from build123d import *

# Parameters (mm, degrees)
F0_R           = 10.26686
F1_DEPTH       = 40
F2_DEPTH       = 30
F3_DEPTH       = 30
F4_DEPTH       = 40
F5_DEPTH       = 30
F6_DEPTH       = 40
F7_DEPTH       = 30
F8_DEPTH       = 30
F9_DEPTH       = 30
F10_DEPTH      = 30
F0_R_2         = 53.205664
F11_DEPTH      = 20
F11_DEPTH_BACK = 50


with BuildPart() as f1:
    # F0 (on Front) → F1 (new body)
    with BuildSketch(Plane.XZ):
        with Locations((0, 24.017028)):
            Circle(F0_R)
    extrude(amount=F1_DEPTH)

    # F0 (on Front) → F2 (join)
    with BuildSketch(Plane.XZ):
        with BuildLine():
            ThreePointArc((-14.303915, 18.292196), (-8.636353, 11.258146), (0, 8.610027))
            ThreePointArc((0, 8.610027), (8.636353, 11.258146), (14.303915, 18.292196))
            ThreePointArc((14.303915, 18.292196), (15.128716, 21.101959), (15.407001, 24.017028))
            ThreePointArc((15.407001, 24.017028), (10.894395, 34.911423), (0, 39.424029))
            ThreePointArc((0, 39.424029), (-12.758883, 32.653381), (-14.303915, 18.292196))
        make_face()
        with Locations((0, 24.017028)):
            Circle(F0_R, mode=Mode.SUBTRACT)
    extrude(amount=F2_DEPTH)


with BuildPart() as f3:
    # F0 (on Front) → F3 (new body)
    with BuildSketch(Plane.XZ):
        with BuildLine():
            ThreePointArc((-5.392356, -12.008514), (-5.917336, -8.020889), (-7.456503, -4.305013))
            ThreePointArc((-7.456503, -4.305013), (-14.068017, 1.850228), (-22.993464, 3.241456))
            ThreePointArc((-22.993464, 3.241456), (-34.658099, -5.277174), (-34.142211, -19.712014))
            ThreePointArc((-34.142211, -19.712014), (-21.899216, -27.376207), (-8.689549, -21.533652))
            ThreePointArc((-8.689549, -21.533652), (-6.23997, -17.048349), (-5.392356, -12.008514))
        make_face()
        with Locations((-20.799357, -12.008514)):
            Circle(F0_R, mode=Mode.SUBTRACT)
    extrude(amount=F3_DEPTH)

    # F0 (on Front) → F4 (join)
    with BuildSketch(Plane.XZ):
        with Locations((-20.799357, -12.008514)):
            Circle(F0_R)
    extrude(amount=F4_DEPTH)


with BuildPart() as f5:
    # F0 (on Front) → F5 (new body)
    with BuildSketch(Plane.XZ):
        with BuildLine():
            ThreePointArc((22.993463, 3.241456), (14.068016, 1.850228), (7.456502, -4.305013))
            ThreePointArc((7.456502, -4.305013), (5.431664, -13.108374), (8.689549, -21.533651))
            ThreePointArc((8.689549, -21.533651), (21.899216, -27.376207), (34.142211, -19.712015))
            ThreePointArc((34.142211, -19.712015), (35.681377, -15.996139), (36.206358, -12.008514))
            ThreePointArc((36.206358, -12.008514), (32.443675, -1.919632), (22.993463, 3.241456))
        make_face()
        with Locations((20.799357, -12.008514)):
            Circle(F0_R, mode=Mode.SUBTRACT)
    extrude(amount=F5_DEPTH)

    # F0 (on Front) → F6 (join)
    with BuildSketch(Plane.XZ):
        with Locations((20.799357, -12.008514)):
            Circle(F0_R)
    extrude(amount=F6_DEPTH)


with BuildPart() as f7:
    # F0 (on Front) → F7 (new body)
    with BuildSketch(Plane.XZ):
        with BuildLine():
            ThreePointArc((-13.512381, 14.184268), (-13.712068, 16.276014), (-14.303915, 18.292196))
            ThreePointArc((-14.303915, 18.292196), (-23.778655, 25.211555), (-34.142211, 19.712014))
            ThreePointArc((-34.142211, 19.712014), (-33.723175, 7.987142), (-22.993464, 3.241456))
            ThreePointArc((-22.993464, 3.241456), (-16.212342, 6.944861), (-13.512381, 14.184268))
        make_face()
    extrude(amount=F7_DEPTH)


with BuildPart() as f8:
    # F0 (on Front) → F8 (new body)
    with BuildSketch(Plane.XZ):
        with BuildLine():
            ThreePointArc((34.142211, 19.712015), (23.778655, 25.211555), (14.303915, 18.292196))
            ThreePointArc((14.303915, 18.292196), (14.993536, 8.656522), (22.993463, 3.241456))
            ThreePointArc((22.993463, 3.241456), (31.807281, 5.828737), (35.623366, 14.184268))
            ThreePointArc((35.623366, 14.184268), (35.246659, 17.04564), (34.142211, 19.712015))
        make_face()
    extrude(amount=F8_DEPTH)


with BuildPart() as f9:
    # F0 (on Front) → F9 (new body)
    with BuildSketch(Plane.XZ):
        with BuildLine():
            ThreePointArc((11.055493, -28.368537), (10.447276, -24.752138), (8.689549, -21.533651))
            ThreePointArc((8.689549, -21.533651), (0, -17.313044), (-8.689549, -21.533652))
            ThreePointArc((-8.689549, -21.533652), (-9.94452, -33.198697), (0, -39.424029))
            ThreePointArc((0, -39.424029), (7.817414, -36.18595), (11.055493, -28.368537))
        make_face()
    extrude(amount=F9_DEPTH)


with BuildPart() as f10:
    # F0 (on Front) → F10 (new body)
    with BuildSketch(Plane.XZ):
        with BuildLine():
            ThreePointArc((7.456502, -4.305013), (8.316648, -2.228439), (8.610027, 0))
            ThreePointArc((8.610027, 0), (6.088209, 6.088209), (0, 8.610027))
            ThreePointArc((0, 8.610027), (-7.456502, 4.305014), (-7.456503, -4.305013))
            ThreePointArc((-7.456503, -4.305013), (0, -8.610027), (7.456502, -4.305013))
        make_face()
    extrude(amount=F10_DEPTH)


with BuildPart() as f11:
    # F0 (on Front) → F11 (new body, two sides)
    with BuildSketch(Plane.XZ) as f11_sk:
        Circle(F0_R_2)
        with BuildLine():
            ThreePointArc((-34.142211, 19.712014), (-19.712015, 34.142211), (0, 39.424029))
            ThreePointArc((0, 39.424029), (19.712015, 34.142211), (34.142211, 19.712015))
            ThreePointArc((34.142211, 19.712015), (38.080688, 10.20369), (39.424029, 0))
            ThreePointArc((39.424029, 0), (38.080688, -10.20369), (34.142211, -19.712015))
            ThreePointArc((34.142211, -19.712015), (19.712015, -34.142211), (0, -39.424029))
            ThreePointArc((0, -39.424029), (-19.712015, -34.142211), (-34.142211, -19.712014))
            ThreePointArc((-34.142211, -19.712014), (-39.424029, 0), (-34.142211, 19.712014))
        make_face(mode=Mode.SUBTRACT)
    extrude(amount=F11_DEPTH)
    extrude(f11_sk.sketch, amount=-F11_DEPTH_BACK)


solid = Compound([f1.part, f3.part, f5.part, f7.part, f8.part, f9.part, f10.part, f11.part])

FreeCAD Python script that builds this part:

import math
import FreeCAD as App
import Part
import Sketcher

doc = App.newDocument("Part")
body = doc.addObject("PartDesign::Body", "Body")

sketch1 = body.newObject("Sketcher::SketchObject", "Sketch")
sketch1.AttachmentSupport = (doc.getObject("XZ_Plane"), [""])
sketch1.MapMode = "FlatFace"
sketch1.addGeometry(Part.Circle(App.Vector(0, 24, 0), App.Vector(0, 0, 1), 10), False)
sketch1.addConstraint([
    Sketcher.Constraint("PointOnObject", 0, 3, -2),
    Sketcher.Constraint("Diameter", 0, 20.53372),
    Sketcher.Constraint("DistanceY", -1, 1, 0, 3, 24.017028),
])
pad1 = body.newObject("PartDesign::Pad", "Pad")
pad1.Profile = sketch1
pad1.Length = 40

sketch2 = body.newObject("Sketcher::SketchObject", "Sketch001")
sketch2.AttachmentSupport = (doc.getObject("XZ_Plane"), [""])
sketch2.MapMode = "FlatFace"
sketch2.addGeometry([
    Part.ArcOfCircle(Part.Circle(App.Vector(0.000002, 24.017031, 0), App.Vector(0, 0, 1), 15.407004), math.radians(-158.187305), math.radians(-90.000007)),
    Part.ArcOfCircle(Part.Circle(App.Vector(-0.000002, 24.017031, 0), App.Vector(0, 0, 1), 15.407004), math.radians(-89.999993), math.radians(-21.812695)),
    Part.ArcOfCircle(Part.Circle(App.Vector(-0.000014, 24.01703, 0), App.Vector(0, 0, 1), 15.407015), math.radians(-21.812675), math.radians(-0.000008)),
    Part.ArcOfCircle(Part.Circle(App.Vector(0, 24.017028, 0), App.Vector(0, 0, 1), 15.407001), math.radians(-0.000001), math.radians(90.000001)),
    Part.ArcOfCircle(Part.Circle(App.Vector(0, 24.017028, 0), App.Vector(0, 0, 1), 15.407001), math.radians(89.999998), math.radians(201.812688)),
    Part.Circle(App.Vector(0, 24.017028, 0), App.Vector(0, 0, 1), 10.26686),
], False)
sketch2.addConstraint([
    Sketcher.Constraint("Coincident", 0, 2, 1, 1),
    Sketcher.Constraint("Coincident", 1, 2, 2, 1),
    Sketcher.Constraint("Coincident", 2, 2, 3, 1),
    Sketcher.Constraint("Coincident", 3, 2, 4, 1),
    Sketcher.Constraint("Coincident", 4, 2, 0, 1),
    Sketcher.Constraint("Coincident", 1, 3, 0, 3),
    Sketcher.Constraint("Coincident", 3, 3, 0, 3),
    Sketcher.Constraint("Coincident", 4, 3, 0, 3),
    Sketcher.Constraint("Coincident", 5, 3, 0, 3),
    Sketcher.Constraint("PointOnObject", 0, 3, -2),
    Sketcher.Constraint("PointOnObject", 0, 2, -2),
    Sketcher.Constraint("PointOnObject", 3, 2, -2),
    Sketcher.Constraint("Radius", 3, 15.407001),
    Sketcher.Constraint("Diameter", 5, 20.53372),
    Sketcher.Constraint("Radius", 2, 15.407015),
    Sketcher.Constraint("DistanceX", 4, 2, 2, 3, 14.303901),
    Sketcher.Constraint("DistanceY", -1, 1, 0, 3, 24.017031),
    Sketcher.Constraint("DistanceY", -1, 1, 2, 2, 24.017028),
    Sketcher.Constraint("DistanceX", -1, 1, 1, 2, 14.303915),
])
pad2 = body.newObject("PartDesign::Pad", "Pad001")
pad2.Profile = sketch2
pad2.Length = 30
body2 = doc.addObject("PartDesign::Body", "Body001")

sketch3 = body2.newObject("Sketcher::SketchObject", "Sketch002")
sketch3.AttachmentSupport = (doc.getObject("XZ_Plane001"), [""])
sketch3.MapMode = "FlatFace"
sketch3.addGeometry([
    Part.ArcOfCircle(Part.Circle(App.Vector(-20.799337, -12.008509, 0), App.Vector(0, 0, 1), 15.406981), math.radians(-0.00002), math.radians(30.000022)),
    Part.ArcOfCircle(Part.Circle(App.Vector(-20.799359, -12.008517, 0), App.Vector(0, 0, 1), 15.407004), math.radians(30.000008), math.radians(98.187304)),
    Part.ArcOfCircle(Part.Circle(App.Vector(-20.799356, -12.008514, 0), App.Vector(0, 0, 1), 15.407001), math.radians(98.187315), math.radians(209.999998)),
    Part.ArcOfCircle(Part.Circle(App.Vector(-20.799356, -12.008514, 0), App.Vector(0, 0, 1), 15.407001), math.radians(-150.000001), math.radians(-38.187316)),
    Part.ArcOfCircle(Part.Circle(App.Vector(-20.79936, -12.008514, 0), App.Vector(0, 0, 1), 15.407004), math.radians(-38.187305), math.radians(0)),
    Part.Circle(App.Vector(-20.799357, -12.008514, 0), App.Vector(0, 0, 1), 10.26686),
], False)
sketch3.addConstraint([
    Sketcher.Constraint("Coincident", 0, 2, 1, 1),
    Sketcher.Constraint("Coincident", 1, 2, 2, 1),
    Sketcher.Constraint("Coincident", 2, 2, 3, 1),
    Sketcher.Constraint("Coincident", 3, 2, 4, 1),
    Sketcher.Constraint("Coincident", 4, 2, 0, 1),
    Sketcher.Constraint("Coincident", 2, 3, 1, 3),
    Sketcher.Constraint("Coincident", 3, 3, 1, 3),
    Sketcher.Constraint("Coincident", 4, 3, 1, 3),
    Sketcher.Constraint("Coincident", 5, 3, 1, 3),
    Sketcher.Constraint("Radius", 2, 15.407001),
    Sketcher.Constraint("Diameter", 5, 20.53372),
    Sketcher.Constraint("Radius", 0, 15.406981),
    Sketcher.Constraint("DistanceY", 3, 3, 0, 2, 7.703501),
    Sketcher.Constraint("DistanceY", 2, 2, 4, 3, 7.7035),
    Sketcher.Constraint("DistanceY", 4, 2, 0, 2, 7.703501),
    Sketcher.Constraint("DistanceY", 0, 3, -1, 1, 12.008509),
    Sketcher.Constraint("DistanceX", 1, 3, -1, 1, 20.799359),
    Sketcher.Constraint("DistanceX", 3, 2, -1, 1, 8.689549),
    Sketcher.Constraint("DistanceY", 4, 3, 1, 2, 15.24997),
])
pad3 = body2.newObject("PartDesign::Pad", "Pad002")
pad3.Profile = sketch3
pad3.Length = 30

sketch4 = body2.newObject("Sketcher::SketchObject", "Sketch003")
sketch4.AttachmentSupport = (doc.getObject("XZ_Plane001"), [""])
sketch4.MapMode = "FlatFace"
sketch4.addGeometry(Part.Circle(App.Vector(-21, -12, 0), App.Vector(0, 0, 1), 10), False)
sketch4.addConstraint([
    Sketcher.Constraint("Diameter", 0, 20.53372),
    Sketcher.Constraint("DistanceX", 0, 3, -1, 1, 20.799357),
    Sketcher.Constraint("DistanceY", 0, 3, -1, 1, 12.008514),
])
pad4 = body2.newObject("PartDesign::Pad", "Pad003")
pad4.Profile = sketch4
pad4.Length = 40
body3 = doc.addObject("PartDesign::Body", "Body002")

sketch5 = body3.newObject("Sketcher::SketchObject", "Sketch004")
sketch5.AttachmentSupport = (doc.getObject("XZ_Plane002"), [""])
sketch5.MapMode = "FlatFace"
sketch5.addGeometry([
    Part.ArcOfCircle(Part.Circle(App.Vector(21, -12, 0), App.Vector(0, 0, 1), 15), math.radians(82), math.radians(150)),
    Part.ArcOfCircle(Part.Circle(App.Vector(21, -12, 0), App.Vector(0, 0, 1), 15), math.radians(150), math.radians(218)),
    Part.ArcOfCircle(Part.Circle(App.Vector(21, -12, 0), App.Vector(0, 0, 1), 15), math.radians(-142), math.radians(-30)),
    Part.ArcOfCircle(Part.Circle(App.Vector(21, -12, 0), App.Vector(0, 0, 1), 15), math.radians(-30), math.radians(0)),
    Part.ArcOfCircle(Part.Circle(App.Vector(21, -12, 0), App.Vector(0, 0, 1), 15), math.radians(0), math.radians(82)),
    Part.Circle(App.Vector(21, -12, 0), App.Vector(0, 0, 1), 10),
], False)
sketch5.addConstraint([
    Sketcher.Constraint("Tangent", 0, 2, 1, 1),
    Sketcher.Constraint("Tangent", 1, 2, 2, 1),
    Sketcher.Constraint("Tangent", 2, 2, 3, 1),
    Sketcher.Constraint("Tangent", 3, 2, 4, 1),
    Sketcher.Constraint("Tangent", 4, 2, 0, 1),
    Sketcher.Constraint("Coincident", 2, 3, 0, 3),
    Sketcher.Constraint("Coincident", 5, 3, 0, 3),
    Sketcher.Constraint("Horizontal", 5, 3, 3, 2),
    Sketcher.Constraint("Radius", 2, 15.407001),
    Sketcher.Constraint("Diameter", 5, 20.53372),
    Sketcher.Constraint("DistanceY", 3, 3, 0, 2, 7.703499),
    Sketcher.Constraint("DistanceX", 1, 2, 3, 3, 12.109801),
    Sketcher.Constraint("DistanceY", 2, 2, 1, 3, 7.703502),
    Sketcher.Constraint("DistanceX", -1, 1, 1, 3, 20.79936),
    Sketcher.Constraint("DistanceY", 1, 2, -1, 1, 21.533651),
    Sketcher.Constraint("DistanceY", 1, 3, 4, 2, 15.249969),
])
pad5 = body3.newObject("PartDesign::Pad", "Pad004")
pad5.Profile = sketch5
pad5.Length = 30

sketch6 = body3.newObject("Sketcher::SketchObject", "Sketch005")
sketch6.AttachmentSupport = (doc.getObject("XZ_Plane002"), [""])
sketch6.MapMode = "FlatFace"
sketch6.addGeometry(Part.Circle(App.Vector(21, -12, 0), App.Vector(0, 0, 1), 10), False)
sketch6.addConstraint([
    Sketcher.Constraint("Diameter", 0, 20.53372),
    Sketcher.Constraint("DistanceX", -1, 1, 0, 3, 20.799357),
    Sketcher.Constraint("DistanceY", 0, 3, -1, 1, 12.008514),
])
pad6 = body3.newObject("PartDesign::Pad", "Pad005")
pad6.Profile = sketch6
pad6.Length = 40
body4 = doc.addObject("PartDesign::Body", "Body003")

sketch7 = body4.newObject("Sketcher::SketchObject", "Sketch006")
sketch7.AttachmentSupport = (doc.getObject("XZ_Plane003"), [""])
sketch7.MapMode = "FlatFace"
sketch7.addGeometry([
    Part.ArcOfCircle(Part.Circle(App.Vector(-24.6, 14.2, 0), App.Vector(0, 0, 1), 11.1), math.radians(0), math.radians(22)),
    Part.ArcOfCircle(Part.Circle(App.Vector(-24.6, 14.2, 0), App.Vector(0, 0, 1), 11.1), math.radians(22), math.radians(150)),
    Part.ArcOfCircle(Part.Circle(App.Vector(-24.6, 14.2, 0), App.Vector(0, 0, 1), 11.1), math.radians(150), math.radians(278)),
    Part.ArcOfCircle(Part.Circle(App.Vector(-24.6, 14.2, 0), App.Vector(0, 0, 1), 11.1), math.radians(-82), math.radians(0)),
], False)
sketch7.addConstraint([
    Sketcher.Constraint("Tangent", 0, 2, 1, 1),
    Sketcher.Constraint("Tangent", 1, 2, 2, 1),
    Sketcher.Constraint("Tangent", 2, 2, 3, 1),
    Sketcher.Constraint("Tangent", 3, 2, 0, 1),
    Sketcher.Constraint("Equal", 1, 2),
    Sketcher.Constraint("Horizontal", 2, 3, 3, 2),
    Sketcher.Constraint("Radius", 2, 11.055492),
    Sketcher.Constraint("DistanceY", -1, 1, 1, 3, 14.184269),
    Sketcher.Constraint("DistanceX", 3, 3, -1, 1, 24.567871),
    Sketcher.Constraint("DistanceX", 1, 2, -1, 1, 34.142211),
    Sketcher.Constraint("DistanceY", 3, 3, 0, 2, 4.107929),
    Sketcher.Constraint("DistanceY", 2, 2, 3, 3, 10.942811),
])
pad7 = body4.newObject("PartDesign::Pad", "Pad006")
pad7.Profile = sketch7
pad7.Length = 30
body5 = doc.addObject("PartDesign::Body", "Body004")

sketch8 = body5.newObject("Sketcher::SketchObject", "Sketch007")
sketch8.AttachmentSupport = (doc.getObject("XZ_Plane004"), [""])
sketch8.MapMode = "FlatFace"
sketch8.addGeometry([
    Part.ArcOfCircle(Part.Circle(App.Vector(24.567874, 14.184268, 0), App.Vector(0, 0, 1), 11.055493), math.radians(30.000002), math.radians(158.18731)),
    Part.ArcOfCircle(Part.Circle(App.Vector(24.567873, 14.184268, 0), App.Vector(0, 0, 1), 11.055492), math.radians(158.187308), math.radians(261.812688)),
    Part.ArcOfCircle(Part.Circle(App.Vector(24.567875, 14.184267, 0), App.Vector(0, 0, 1), 11.055491), math.radians(-98.187322), math.radians(0.000004)),
    Part.ArcOfCircle(Part.Circle(App.Vector(24.56786, 14.184265, 0), App.Vector(0, 0, 1), 11.055506), math.radians(0.000014), math.radians(29.99998)),
], False)
sketch8.addConstraint([
    Sketcher.Constraint("Coincident", 0, 2, 1, 1),
    Sketcher.Constraint("Coincident", 1, 2, 2, 1),
    Sketcher.Constraint("Coincident", 2, 2, 3, 1),
    Sketcher.Constraint("Coincident", 3, 2, 0, 1),
    Sketcher.Constraint("Coincident", 1, 3, 0, 3),
    Sketcher.Constraint("Coincident", 2, 3, 0, 3),
    Sketcher.Constraint("Radius", 1, 11.055492),
    Sketcher.Constraint("Radius", 3, 11.055506),
    Sketcher.Constraint("DistanceY", -1, 1, 0, 3, 14.184268),
    Sketcher.Constraint("DistanceX", -1, 1, 3, 3, 24.56786),
    Sketcher.Constraint("DistanceX", -1, 1, 3, 2, 34.142211),
    Sketcher.Constraint("DistanceY", 3, 3, 0, 2, 4.107931),
    Sketcher.Constraint("DistanceY", 1, 2, 3, 3, 10.942809),
    Sketcher.Constraint("DistanceY", -1, 1, 2, 2, 14.184268),
])
pad8 = body5.newObject("PartDesign::Pad", "Pad007")
pad8.Profile = sketch8
pad8.Length = 30
body6 = doc.addObject("PartDesign::Body", "Body005")

sketch9 = body6.newObject("Sketcher::SketchObject", "Sketch008")
sketch9.AttachmentSupport = (doc.getObject("XZ_Plane005"), [""])
sketch9.MapMode = "FlatFace"
sketch9.addGeometry([
    Part.ArcOfCircle(Part.Circle(App.Vector(0, -28, 0), App.Vector(0, 0, 1), 11), math.radians(0), math.radians(38)),
    Part.ArcOfCircle(Part.Circle(App.Vector(0, -28, 0), App.Vector(0, 0, 1), 11), math.radians(38), math.radians(142)),
    Part.ArcOfCircle(Part.Circle(App.Vector(0, -28, 0), App.Vector(0, 0, 1), 11), math.radians(142), math.radians(270)),
    Part.ArcOfCircle(Part.Circle(App.Vector(0, -28, 0), App.Vector(0, 0, 1), 11), math.radians(-90), math.radians(0)),
], False)
sketch9.addConstraint([
    Sketcher.Constraint("Tangent", 0, 2, 1, 1),
    Sketcher.Constraint("Tangent", 1, 2, 2, 1),
    Sketcher.Constraint("Tangent", 2, 2, 3, 1),
    Sketcher.Constraint("Tangent", 3, 2, 0, 1),
    Sketcher.Constraint("Equal", 1, 2),
    Sketcher.Constraint("Symmetric", 0, 2, 1, 2, -2),
    Sketcher.Constraint("PointOnObject", 2, 2, -2),
    Sketcher.Constraint("Horizontal", 2, 3, 3, 2),
    Sketcher.Constraint("Radius", 0, 11.0555),
    Sketcher.Constraint("DistanceY", 0, 3, -1, 1, 28.368539),
    Sketcher.Constraint("DistanceX", -1, 1, 0, 2, 8.689549),
])
pad9 = body6.newObject("PartDesign::Pad", "Pad008")
pad9.Profile = sketch9
pad9.Length = 30
body7 = doc.addObject("PartDesign::Body", "Body006")

sketch10 = body7.newObject("Sketcher::SketchObject", "Sketch009")
sketch10.AttachmentSupport = (doc.getObject("XZ_Plane006"), [""])
sketch10.MapMode = "FlatFace"
sketch10.addGeometry([
    Part.ArcOfCircle(Part.Circle(App.Vector(0.000021, -0.000005, 0), App.Vector(0, 0, 1), 8.610006), math.radians(-30.000038), math.radians(0.000032)),
    Part.ArcOfCircle(Part.Circle(App.Vector(0.000002, 0.000002, 0), App.Vector(0, 0, 1), 8.610025), math.radians(-0.000012), math.radians(90.000012)),
    Part.ArcOfCircle(Part.Circle(App.Vector(0, 0, 0), App.Vector(0, 0, 1), 8.610027), math.radians(90), math.radians(209.999992)),
    Part.ArcOfCircle(Part.Circle(App.Vector(0, 0, 0), App.Vector(0, 0, 1), 8.610027), math.radians(-150.000003), math.radians(-29.999997)),
], False)
sketch10.addConstraint([
    Sketcher.Constraint("Coincident", 0, 2, 1, 1),
    Sketcher.Constraint("Coincident", 1, 2, 2, 1),
    Sketcher.Constraint("Coincident", 2, 2, 3, 1),
    Sketcher.Constraint("Coincident", 3, 2, 0, 1),
    Sketcher.Constraint("Coincident", 1, 3, -1, 1),
    Sketcher.Constraint("Coincident", 2, 3, -1, 1),
    Sketcher.Constraint("Coincident", 3, 3, -1, 1),
    Sketcher.Constraint("PointOnObject", 0, 2, -1),
    Sketcher.Constraint("PointOnObject", 1, 2, -2),
    Sketcher.Constraint("Radius", 0, 8.610006),
    Sketcher.Constraint("Radius", 1, 8.610025),
    Sketcher.Constraint("DistanceX", 1, 3, 3, 2, 7.4565),
    Sketcher.Constraint("DistanceY", 2, 2, 0, 3, 4.305008),
])
pad10 = body7.newObject("PartDesign::Pad", "Pad009")
pad10.Profile = sketch10
pad10.Length = 30
body8 = doc.addObject("PartDesign::Body", "Body007")

sketch11 = body8.newObject("Sketcher::SketchObject", "Sketch010")
sketch11.AttachmentSupport = (doc.getObject("XZ_Plane007"), [""])
sketch11.MapMode = "FlatFace"
sketch11.addGeometry([
    Part.Circle(App.Vector(0, 0, 0), App.Vector(0, 0, 1), 53),
    Part.ArcOfCircle(Part.Circle(App.Vector(0, 0, 0), App.Vector(0, 0, 1), 39), math.radians(150), math.radians(210)),
    Part.ArcOfCircle(Part.Circle(App.Vector(0, 0, 0), App.Vector(0, 0, 1), 39), math.radians(90), math.radians(150)),
    Part.ArcOfCircle(Part.Circle(App.Vector(0, 0, 0), App.Vector(0, 0, 1), 39), math.radians(30), math.radians(90)),
    Part.ArcOfCircle(Part.Circle(App.Vector(0, 0, 0), App.Vector(0, 0, 1), 39), math.radians(0), math.radians(30)),
    Part.ArcOfCircle(Part.Circle(App.Vector(0, 0, 0), App.Vector(0, 0, 1), 39), math.radians(-30), math.radians(0)),
    Part.ArcOfCircle(Part.Circle(App.Vector(0, 0, 0), App.Vector(0, 0, 1), 39), math.radians(-90), math.radians(-30)),
    Part.ArcOfCircle(Part.Circle(App.Vector(0, 0, 0), App.Vector(0, 0, 1), 39), math.radians(-150), math.radians(-90)),
], False)
sketch11.addConstraint([
    Sketcher.Constraint("Tangent", 1, 1, 2, 2),
    Sketcher.Constraint("Tangent", 2, 1, 3, 2),
    Sketcher.Constraint("Tangent", 3, 1, 4, 2),
    Sketcher.Constraint("Tangent", 4, 1, 5, 2),
    Sketcher.Constraint("Tangent", 5, 1, 6, 2),
    Sketcher.Constraint("Tangent", 6, 1, 7, 2),
    Sketcher.Constraint("Tangent", 7, 1, 1, 2),
    Sketcher.Constraint("Coincident", 0, 3, -1, 1),
    Sketcher.Constraint("Coincident", 1, 3, -1, 1),
    Sketcher.Constraint("Coincident", 3, 3, -1, 1),
    Sketcher.Constraint("Coincident", 5, 3, -1, 1),
    Sketcher.Constraint("PointOnObject", 2, 1, -2),
    Sketcher.Constraint("PointOnObject", 4, 1, -1),
    Sketcher.Constraint("PointOnObject", 6, 1, -2),
    Sketcher.Constraint("Horizontal", 1, 1, 3, 1),
    Sketcher.Constraint("Horizontal", 5, 1, 7, 1),
    Sketcher.Constraint("Vertical", 3, 1, 5, 1),
    Sketcher.Constraint("Radius", 1, 39.42403),
    Sketcher.Constraint("Diameter", 0, 106.411328),
    Sketcher.Constraint("DistanceX", 1, 1, -1, 1, 34.142211),
])
pad11 = body8.newObject("PartDesign::Pad", "Pad010")
pad11.Profile = sketch11
pad11.Type = "TwoLengths"
pad11.Length = 20
pad11.Length2 = 50

doc.recompute()
